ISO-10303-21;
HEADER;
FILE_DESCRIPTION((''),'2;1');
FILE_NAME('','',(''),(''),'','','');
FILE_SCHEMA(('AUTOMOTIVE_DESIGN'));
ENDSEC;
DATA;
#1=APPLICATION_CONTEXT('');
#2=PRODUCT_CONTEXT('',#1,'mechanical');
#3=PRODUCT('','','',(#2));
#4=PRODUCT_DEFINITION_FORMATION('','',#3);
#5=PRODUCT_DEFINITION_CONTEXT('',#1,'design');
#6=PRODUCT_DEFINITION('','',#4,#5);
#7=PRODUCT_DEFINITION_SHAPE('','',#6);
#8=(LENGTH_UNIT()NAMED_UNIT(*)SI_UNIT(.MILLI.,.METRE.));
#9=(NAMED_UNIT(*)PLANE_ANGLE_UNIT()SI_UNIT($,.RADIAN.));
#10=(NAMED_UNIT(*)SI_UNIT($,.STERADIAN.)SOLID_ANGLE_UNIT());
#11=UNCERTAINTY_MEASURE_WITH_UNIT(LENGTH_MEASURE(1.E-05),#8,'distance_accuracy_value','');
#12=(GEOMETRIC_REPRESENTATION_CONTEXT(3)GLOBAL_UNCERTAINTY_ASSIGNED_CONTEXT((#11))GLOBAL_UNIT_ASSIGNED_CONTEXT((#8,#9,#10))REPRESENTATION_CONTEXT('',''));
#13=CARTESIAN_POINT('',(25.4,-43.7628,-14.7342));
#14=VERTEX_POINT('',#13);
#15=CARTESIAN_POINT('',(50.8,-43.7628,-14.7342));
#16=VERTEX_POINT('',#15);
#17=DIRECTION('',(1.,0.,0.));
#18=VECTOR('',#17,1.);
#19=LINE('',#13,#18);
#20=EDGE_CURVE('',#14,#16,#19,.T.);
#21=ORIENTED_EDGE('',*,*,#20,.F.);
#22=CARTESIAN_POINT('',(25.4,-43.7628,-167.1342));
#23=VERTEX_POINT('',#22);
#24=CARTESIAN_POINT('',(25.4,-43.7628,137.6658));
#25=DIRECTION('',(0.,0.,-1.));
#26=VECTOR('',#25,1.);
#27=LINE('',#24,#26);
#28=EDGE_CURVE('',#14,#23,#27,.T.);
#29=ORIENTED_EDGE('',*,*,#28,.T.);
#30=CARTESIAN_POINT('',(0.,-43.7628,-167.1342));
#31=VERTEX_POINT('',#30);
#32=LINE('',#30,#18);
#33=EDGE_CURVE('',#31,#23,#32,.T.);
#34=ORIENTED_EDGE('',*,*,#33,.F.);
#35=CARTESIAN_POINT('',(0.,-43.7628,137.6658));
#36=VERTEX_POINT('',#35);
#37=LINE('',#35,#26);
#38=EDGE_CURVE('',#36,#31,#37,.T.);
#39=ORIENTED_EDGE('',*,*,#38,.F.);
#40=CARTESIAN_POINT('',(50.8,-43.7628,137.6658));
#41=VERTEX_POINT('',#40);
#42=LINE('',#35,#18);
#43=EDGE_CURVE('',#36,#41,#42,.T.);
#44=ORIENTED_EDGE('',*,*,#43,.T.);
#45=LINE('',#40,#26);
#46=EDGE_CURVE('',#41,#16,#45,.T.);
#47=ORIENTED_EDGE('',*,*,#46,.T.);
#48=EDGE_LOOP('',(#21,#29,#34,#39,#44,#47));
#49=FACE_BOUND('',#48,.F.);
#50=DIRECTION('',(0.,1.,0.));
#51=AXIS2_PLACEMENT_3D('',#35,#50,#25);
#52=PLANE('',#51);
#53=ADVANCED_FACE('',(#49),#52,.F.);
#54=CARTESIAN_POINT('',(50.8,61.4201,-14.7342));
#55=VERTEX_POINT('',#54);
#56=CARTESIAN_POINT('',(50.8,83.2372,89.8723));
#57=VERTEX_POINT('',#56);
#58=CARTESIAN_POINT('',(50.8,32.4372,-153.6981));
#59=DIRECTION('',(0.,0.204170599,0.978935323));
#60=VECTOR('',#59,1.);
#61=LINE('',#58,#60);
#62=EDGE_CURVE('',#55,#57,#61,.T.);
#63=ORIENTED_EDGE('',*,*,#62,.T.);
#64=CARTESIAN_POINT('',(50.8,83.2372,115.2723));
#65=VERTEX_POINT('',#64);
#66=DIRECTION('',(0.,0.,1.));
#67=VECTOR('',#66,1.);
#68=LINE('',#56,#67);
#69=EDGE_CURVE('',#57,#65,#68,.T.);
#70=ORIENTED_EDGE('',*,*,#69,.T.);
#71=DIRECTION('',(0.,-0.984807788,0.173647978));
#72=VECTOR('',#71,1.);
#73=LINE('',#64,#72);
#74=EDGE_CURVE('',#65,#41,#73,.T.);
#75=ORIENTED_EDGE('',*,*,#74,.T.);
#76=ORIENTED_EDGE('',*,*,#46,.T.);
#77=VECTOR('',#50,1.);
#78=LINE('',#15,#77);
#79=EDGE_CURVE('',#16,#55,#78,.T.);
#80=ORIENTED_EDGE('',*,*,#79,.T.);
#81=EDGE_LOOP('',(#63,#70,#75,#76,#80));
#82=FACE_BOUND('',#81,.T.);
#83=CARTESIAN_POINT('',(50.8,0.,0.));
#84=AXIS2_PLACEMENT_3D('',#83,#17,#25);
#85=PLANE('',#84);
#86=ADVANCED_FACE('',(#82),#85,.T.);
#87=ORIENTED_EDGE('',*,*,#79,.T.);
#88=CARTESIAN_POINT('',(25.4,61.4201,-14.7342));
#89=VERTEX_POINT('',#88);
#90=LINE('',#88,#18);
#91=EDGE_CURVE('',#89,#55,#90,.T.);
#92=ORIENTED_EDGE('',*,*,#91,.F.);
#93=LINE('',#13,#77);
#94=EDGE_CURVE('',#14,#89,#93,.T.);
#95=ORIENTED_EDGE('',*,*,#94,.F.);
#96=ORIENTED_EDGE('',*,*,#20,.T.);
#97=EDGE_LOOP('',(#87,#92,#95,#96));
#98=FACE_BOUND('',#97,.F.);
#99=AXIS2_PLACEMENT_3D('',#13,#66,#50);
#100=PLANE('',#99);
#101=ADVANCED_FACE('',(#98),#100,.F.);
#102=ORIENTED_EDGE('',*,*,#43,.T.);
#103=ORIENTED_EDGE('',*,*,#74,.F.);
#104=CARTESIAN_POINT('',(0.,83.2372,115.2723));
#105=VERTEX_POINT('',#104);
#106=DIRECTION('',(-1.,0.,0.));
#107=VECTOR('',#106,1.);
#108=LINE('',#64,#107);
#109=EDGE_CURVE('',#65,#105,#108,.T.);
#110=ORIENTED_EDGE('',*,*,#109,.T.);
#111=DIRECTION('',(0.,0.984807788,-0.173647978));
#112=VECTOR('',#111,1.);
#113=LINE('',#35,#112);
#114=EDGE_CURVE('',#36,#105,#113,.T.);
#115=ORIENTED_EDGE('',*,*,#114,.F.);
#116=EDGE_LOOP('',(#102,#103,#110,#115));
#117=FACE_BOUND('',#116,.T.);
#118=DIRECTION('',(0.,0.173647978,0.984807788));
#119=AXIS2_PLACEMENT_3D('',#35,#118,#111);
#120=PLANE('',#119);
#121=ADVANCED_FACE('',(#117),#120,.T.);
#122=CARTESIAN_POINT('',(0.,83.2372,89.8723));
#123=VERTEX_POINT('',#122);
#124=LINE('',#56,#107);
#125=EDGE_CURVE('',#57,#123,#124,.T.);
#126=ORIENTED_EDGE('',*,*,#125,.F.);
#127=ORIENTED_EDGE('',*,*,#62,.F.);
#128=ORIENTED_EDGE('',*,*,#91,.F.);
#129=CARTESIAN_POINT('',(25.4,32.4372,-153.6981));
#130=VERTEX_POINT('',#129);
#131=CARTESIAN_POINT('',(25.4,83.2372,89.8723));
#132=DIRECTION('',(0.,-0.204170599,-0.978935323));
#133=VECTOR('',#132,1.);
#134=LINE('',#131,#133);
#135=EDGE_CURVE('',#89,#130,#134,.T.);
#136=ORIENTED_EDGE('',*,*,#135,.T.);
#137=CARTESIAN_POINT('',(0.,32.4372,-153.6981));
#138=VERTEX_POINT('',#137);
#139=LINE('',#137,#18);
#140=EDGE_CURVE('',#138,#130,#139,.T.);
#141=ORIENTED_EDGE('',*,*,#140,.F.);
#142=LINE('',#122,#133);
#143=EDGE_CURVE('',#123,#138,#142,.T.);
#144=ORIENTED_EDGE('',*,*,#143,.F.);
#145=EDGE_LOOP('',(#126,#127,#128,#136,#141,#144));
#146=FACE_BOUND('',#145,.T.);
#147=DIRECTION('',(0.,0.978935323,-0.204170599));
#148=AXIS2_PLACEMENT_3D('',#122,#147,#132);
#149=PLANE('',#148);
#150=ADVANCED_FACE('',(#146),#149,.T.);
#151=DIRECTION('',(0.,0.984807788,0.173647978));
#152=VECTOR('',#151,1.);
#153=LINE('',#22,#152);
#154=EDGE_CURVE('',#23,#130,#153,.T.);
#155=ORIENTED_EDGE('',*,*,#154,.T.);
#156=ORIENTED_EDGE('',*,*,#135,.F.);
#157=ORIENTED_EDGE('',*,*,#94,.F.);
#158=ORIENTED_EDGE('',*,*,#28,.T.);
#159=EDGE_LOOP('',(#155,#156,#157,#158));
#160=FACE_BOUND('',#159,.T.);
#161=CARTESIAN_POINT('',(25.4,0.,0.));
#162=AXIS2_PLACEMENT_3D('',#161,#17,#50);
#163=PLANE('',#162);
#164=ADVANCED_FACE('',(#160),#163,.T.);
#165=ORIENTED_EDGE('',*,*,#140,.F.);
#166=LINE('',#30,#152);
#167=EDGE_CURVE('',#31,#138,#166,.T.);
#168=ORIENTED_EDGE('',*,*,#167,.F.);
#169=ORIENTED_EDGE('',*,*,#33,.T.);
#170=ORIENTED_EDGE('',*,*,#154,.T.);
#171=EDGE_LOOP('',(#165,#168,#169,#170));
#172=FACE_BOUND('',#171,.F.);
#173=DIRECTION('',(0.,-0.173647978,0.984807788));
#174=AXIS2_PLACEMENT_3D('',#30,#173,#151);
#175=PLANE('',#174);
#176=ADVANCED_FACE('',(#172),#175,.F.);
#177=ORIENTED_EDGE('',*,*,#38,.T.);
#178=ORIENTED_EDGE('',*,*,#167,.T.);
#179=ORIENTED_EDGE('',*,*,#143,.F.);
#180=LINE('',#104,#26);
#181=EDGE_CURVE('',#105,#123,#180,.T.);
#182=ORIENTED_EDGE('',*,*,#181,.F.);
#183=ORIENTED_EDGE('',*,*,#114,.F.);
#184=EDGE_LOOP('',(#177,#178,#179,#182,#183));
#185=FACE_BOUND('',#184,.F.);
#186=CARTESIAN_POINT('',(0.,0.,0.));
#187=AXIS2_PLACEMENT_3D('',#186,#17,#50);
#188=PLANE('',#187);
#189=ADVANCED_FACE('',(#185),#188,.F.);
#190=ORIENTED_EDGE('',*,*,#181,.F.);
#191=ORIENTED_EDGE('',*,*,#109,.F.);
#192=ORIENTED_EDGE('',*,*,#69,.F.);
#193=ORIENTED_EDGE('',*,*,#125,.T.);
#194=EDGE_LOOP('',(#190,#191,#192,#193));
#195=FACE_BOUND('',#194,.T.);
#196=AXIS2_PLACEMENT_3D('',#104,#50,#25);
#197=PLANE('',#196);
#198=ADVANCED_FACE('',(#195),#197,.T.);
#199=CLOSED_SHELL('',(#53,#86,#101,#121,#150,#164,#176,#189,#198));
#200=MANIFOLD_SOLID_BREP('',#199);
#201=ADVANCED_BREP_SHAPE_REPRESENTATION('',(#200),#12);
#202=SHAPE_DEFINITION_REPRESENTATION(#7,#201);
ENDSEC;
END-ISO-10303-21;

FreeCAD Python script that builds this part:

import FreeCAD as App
import Part
import Sketcher
Q = App.Units.Quantity


def add_polygon(sketch, points):
    """Adds a closed chain of lines whose ends are joined by coincident constraints."""
    first, n = sketch.GeometryCount, len(points)
    for a, b in zip(points, points[1:] + points[:1]):
        sketch.addGeometry(Part.LineSegment(App.Vector(*a, 0), App.Vector(*b, 0)), False)
    for i in range(n):
        sketch.addConstraint(Sketcher.Constraint("Coincident", first + i, 2, first + (i + 1) % n, 1))

doc = App.newDocument("Part")
body = doc.addObject("PartDesign::Body", "Body")

sketch1 = doc.addObject("Sketcher::SketchObject", "Sketch")
body.addObject(sketch1)
sketch1.AttachmentSupport = (doc.YZ_Plane, [""])
sketch1.MapMode = "FlatFace"
add_polygon(sketch1, [(83, 115), (-44, 138), (-44, -167), (32, -154), (83, 90)])
sketch1.addConstraint([
    Sketcher.Constraint("Vertical", 1),
    Sketcher.Constraint("Vertical", 4),
    Sketcher.Constraint("DistanceY", 1, 2, 1, 1, Q("12 in")),
    Sketcher.Constraint("DistanceY", 4, 1, 4, 2, Q("1 in")),
    Sketcher.Constraint("DistanceX", 1, 2, 2, 2, Q("3 in")),
    Sketcher.Constraint("DistanceX", 0, 2, 3, 2, Q("5 in")),
    Sketcher.Constraint("Angle", 0, Q("170 deg")),
    Sketcher.Constraint("Angle", 2, Q("10 deg")),
    Sketcher.Constraint("DistanceY", 2, 2, -1, 1, Q("6.0511 in")),
    Sketcher.Constraint("DistanceX", 0, 2, -1, 1, Q("43.7628 mm")),
])
pad1 = doc.addObject("PartDesign::Pad", "Pad")
body.addObject(pad1)
pad1.Profile = sketch1
pad1.Length = Q("1 in")

sketch2 = doc.addObject("Sketcher::SketchObject", "Sketch001")
body.addObject(sketch2)
sketch2.AttachmentSupport = (doc.YZ_Plane, [""])
sketch2.MapMode = "FlatFace"
sketch2.AttachmentOffset = App.Placement(App.Vector(0, 0, 1 * 25.4), App.Rotation())
add_polygon(sketch2, [(83, 115), (-44, 138), (-44, -15), (61, -15), (83, 90)])
sketch2.addConstraint([
    Sketcher.Constraint("Vertical", 1),
    Sketcher.Constraint("Horizontal", 2),
    Sketcher.Constraint("Vertical", 4),
    Sketcher.Constraint("DistanceY", 1, 2, 1, 1, Q("6 in")),
    Sketcher.Constraint("DistanceY", 4, 1, 4, 2, Q("1 in")),
    Sketcher.Constraint("Angle", 0, Q("170 deg")),
    Sketcher.Constraint("DistanceX", 0, 2, 3, 2, Q("5 in")),
    Sketcher.Constraint("Angle", 3, Q("78.219 deg")),
    Sketcher.Constraint("DistanceX", 0, 2, -1, 1, Q("43.7628 mm")),
    Sketcher.Constraint("DistanceY", -1, 1, 0, 2, Q("137.6658 mm")),
])
pad2 = doc.addObject("PartDesign::Pad", "Pad001")
body.addObject(pad2)
pad2.Profile = sketch2
pad2.Length = Q("1 in")

doc.recompute()
